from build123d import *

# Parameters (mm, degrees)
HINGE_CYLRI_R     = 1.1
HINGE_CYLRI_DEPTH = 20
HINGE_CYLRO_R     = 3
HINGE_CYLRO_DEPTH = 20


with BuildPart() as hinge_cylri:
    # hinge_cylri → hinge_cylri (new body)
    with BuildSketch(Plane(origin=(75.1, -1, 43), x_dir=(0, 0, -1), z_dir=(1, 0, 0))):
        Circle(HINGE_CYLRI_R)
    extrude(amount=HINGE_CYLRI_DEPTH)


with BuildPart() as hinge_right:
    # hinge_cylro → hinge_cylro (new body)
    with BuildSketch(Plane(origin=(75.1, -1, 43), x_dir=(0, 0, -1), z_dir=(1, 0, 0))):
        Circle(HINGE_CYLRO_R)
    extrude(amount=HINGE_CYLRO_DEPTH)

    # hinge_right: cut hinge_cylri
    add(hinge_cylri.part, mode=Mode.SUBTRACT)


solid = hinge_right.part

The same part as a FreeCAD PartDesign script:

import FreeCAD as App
import Part
import Sketcher
Q = App.Units.Quantity

doc = App.newDocument("Part")
body = doc.addObject("PartDesign::Body", "Body")

# Sketch on YZ plane
sketch1 = doc.addObject("Sketcher::SketchObject", "Sketch")
body.addObject(sketch1)
sketch1.AttachmentSupport = (doc.YZ_Plane, [""])
sketch1.MapMode = "FlatFace"
sketch1.AttachmentOffset = App.Placement(App.Vector(0, 0, 75.1), App.Rotation())
sketch1.addGeometry(Part.Circle(App.Vector(-1, 43, 0), App.Vector(0, 0, 1), 1.1), False)
sketch1.addConstraint([
    Sketcher.Constraint("Diameter", 0, Q("2.2 mm")),
    Sketcher.Constraint("DistanceX", 0, 3, -1, 1, Q("1 mm")),
    Sketcher.Constraint("DistanceY", -1, 1, 0, 3, Q("43 mm")),
])
pad1 = doc.addObject("PartDesign::Pad", "Pad")
body.addObject(pad1)
pad1.Profile = sketch1
pad1.Length = 20
body2 = doc.addObject("PartDesign::Body", "Body001")

# Sketch on YZ plane
sketch2 = doc.addObject("Sketcher::SketchObject", "Sketch001")
body2.addObject(sketch2)
sketch2.AttachmentSupport = (doc.getObject("YZ_Plane001"), [""])
sketch2.MapMode = "FlatFace"
sketch2.AttachmentOffset = App.Placement(App.Vector(0, 0, 75.1), App.Rotation())
sketch2.addGeometry(Part.Circle(App.Vector(-1, 43, 0), App.Vector(0, 0, 1), 3), False)
sketch2.addConstraint([
    Sketcher.Constraint("Diameter", 0, Q("6 mm")),
    Sketcher.Constraint("DistanceX", 0, 3, -1, 1, Q("1 mm")),
    Sketcher.Constraint("DistanceY", -1, 1, 0, 3, Q("43 mm")),
])
pad2 = doc.addObject("PartDesign::Pad", "Pad001")
body2.addObject(pad2)
pad2.Profile = sketch2
pad2.Length = 20
doc.recompute()

boolean = doc.addObject("PartDesign::Boolean", "Boolean")
body2.addObject(boolean)
boolean.Type = "Cut"
boolean.addObjects([body])

doc.recompute()
